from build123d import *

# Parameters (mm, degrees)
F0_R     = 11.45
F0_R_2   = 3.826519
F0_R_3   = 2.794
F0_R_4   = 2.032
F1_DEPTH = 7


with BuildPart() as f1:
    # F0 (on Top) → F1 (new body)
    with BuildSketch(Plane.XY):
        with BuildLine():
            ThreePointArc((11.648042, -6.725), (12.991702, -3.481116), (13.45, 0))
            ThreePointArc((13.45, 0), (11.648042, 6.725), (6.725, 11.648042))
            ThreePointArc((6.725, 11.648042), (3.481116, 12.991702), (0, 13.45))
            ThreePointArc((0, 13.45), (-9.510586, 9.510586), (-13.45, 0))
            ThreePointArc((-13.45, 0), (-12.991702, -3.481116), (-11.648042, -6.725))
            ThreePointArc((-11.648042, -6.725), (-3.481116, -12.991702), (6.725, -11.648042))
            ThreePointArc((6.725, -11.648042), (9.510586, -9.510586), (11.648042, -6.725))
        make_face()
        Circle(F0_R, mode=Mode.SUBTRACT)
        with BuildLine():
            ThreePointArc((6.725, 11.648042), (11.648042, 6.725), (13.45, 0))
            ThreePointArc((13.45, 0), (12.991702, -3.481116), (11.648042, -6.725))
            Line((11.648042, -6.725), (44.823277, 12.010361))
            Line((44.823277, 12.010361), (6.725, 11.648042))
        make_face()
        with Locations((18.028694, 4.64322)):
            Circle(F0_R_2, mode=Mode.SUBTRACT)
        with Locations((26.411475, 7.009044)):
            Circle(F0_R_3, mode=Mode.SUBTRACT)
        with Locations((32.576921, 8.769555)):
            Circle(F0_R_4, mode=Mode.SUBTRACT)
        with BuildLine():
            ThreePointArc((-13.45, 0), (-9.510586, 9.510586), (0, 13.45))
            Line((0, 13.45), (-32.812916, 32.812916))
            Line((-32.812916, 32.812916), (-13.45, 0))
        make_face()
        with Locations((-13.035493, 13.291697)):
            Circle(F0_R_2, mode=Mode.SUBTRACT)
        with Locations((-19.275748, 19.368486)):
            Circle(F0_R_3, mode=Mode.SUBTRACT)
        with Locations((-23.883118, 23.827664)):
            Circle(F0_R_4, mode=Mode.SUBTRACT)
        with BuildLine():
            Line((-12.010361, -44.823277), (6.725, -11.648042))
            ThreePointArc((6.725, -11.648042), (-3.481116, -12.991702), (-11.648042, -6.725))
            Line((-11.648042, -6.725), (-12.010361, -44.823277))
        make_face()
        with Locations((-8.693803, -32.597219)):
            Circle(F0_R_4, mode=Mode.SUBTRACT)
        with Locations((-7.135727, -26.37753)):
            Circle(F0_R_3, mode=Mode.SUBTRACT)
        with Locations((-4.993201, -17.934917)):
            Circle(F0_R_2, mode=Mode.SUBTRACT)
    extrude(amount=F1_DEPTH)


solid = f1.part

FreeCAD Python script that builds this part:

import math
import FreeCAD as App
import Part
import Sketcher
from FreeCAD import Vector
Q = App.Units.Quantity

doc = App.newDocument("Part")
body = doc.addObject("PartDesign::Body", "Body")

sketch1 = body.newObject("Sketcher::SketchObject", "Sketch")
sketch1.AttachmentSupport = (doc.getObject("XY_Plane"), [""])
sketch1.MapMode = "FlatFace"
sketch1.addGeometry([
    Part.ArcOfCircle(Part.Circle(Vector(-0.000012, 0.000012, 0), Vector(0, 0, 1), 13.450016), math.radians(-59.999982), math.radians(-30.000018)),
    Part.LineSegment(Vector(11.648042, -6.725, 0), Vector(44.823277, 12.010361, 0)),
    Part.LineSegment(Vector(44.823277, 12.010361, 0), Vector(6.725, 11.648042, 0)),
    Part.ArcOfCircle(Part.Circle(Vector(-0.000004, -0.000015, 0), Vector(0, 0, 1), 13.450015), math.radians(60.00002), math.radians(89.999985)),
    Part.LineSegment(Vector(0, 13.45, 0), Vector(-32.812916, 32.812916, 0)),
    Part.LineSegment(Vector(-32.812916, 32.812916, 0), Vector(-13.45, 0, 0)),
    Part.ArcOfCircle(Part.Circle(Vector(0.000015, 0.000004, 0), Vector(0, 0, 1), 13.450015), math.radians(-179.999985), math.radians(-150.00002)),
    Part.LineSegment(Vector(-11.648042, -6.725, 0), Vector(-12.010361, -44.823277, 0)),
    Part.LineSegment(Vector(-12.010361, -44.823277, 0), Vector(6.725, -11.648042, 0)),
    Part.Circle(Vector(-8.693803, -32.597219, 0), Vector(0, 0, 1), 2.032),
    Part.Circle(Vector(-7.135727, -26.37753, 0), Vector(0, 0, 1), 2.794),
    Part.Circle(Vector(-4.993201, -17.934917, 0), Vector(0, 0, 1), 3.826519),
    Part.Circle(Vector(0, 0, 0), Vector(0, 0, 1), 11.45),
    Part.Circle(Vector(-13.035493, 13.291697, 0), Vector(0, 0, 1), 3.826519),
    Part.Circle(Vector(-19.275748, 19.368486, 0), Vector(0, 0, 1), 2.794),
    Part.Circle(Vector(-23.883118, 23.827664, 0), Vector(0, 0, 1), 2.032),
    Part.Circle(Vector(18.028694, 4.64322, 0), Vector(0, 0, 1), 3.826519),
    Part.Circle(Vector(26.411475, 7.009044, 0), Vector(0, 0, 1), 2.794),
    Part.Circle(Vector(32.576921, 8.769555, 0), Vector(0, 0, 1), 2.032),
], False)
sketch1.addConstraint([
    Sketcher.Constraint("Coincident", 0, 2, 1, 1),
    Sketcher.Constraint("Coincident", 1, 2, 2, 1),
    Sketcher.Constraint("Coincident", 2, 2, 3, 1),
    Sketcher.Constraint("Coincident", 3, 2, 4, 1),
    Sketcher.Constraint("Coincident", 4, 2, 5, 1),
    Sketcher.Constraint("Coincident", 5, 2, 6, 1),
    Sketcher.Constraint("Coincident", 6, 2, 7, 1),
    Sketcher.Constraint("Coincident", 7, 2, 8, 1),
    Sketcher.Constraint("Coincident", 8, 2, 0, 1),
    Sketcher.Constraint("Coincident", 12, 3, -1, 1),
    Sketcher.Constraint("Equal", 0, 3),
    Sketcher.Constraint("Equal", 3, 6),
    Sketcher.Constraint("Equal", 11, 13),
    Sketcher.Constraint("Equal", 10, 14),
    Sketcher.Constraint("Equal", 9, 15),
    Sketcher.Constraint("Equal", 13, 16),
    Sketcher.Constraint("Equal", 14, 17),
    Sketcher.Constraint("Equal", 15, 18),
    Sketcher.Constraint("Symmetric", 0, 3, 6, 3, -2),
    Sketcher.Constraint("Symmetric", 0, 3, 3, 3, -1),
    Sketcher.Constraint("PointOnObject", 3, 2, -2),
    Sketcher.Constraint("PointOnObject", 5, 2, -1),
    Sketcher.Constraint("Horizontal", 0, 2, 6, 2),
    Sketcher.Constraint("Vertical", 2, 2, 8, 2),
    Sketcher.Constraint("Equal", 1, 2),
    Sketcher.Constraint("Equal", 2, 4),
    Sketcher.Constraint("Equal", 4, 5),
    Sketcher.Constraint("Equal", 5, 7),
    Sketcher.Constraint("Equal", 7, 8),
    Sketcher.Constraint("Diameter", 9, Q("0.16 in")),
    Sketcher.Constraint("Diameter", 10, Q("0.22 in")),
    Sketcher.Constraint("Distance", 1, Q("1.5 in")),
    Sketcher.Constraint("Diameter", 12, Q("22.9 mm")),
    Sketcher.Constraint("Diameter", 11, Q("7.653038 mm")),
    Sketcher.Constraint("Radius", 0, Q("13.450016 mm")),
    Sketcher.Constraint("DistanceX", 11, 3, -1, 1, Q("4.993201 mm")),
    Sketcher.Constraint("DistanceY", 0, 2, -1, 1, Q("6.725 mm")),
    Sketcher.Constraint("DistanceX", -1, 1, 2, 2, Q("6.725 mm")),
    Sketcher.Constraint("DistanceY", -1, 1, 3, 2, Q("13.45 mm")),
    Sketcher.Constraint("DistanceX", 5, 2, -1, 1, Q("13.45 mm")),
    Sketcher.Constraint("DistanceX", 9, 3, 3, 3, Q("8.693799 mm")),
    Sketcher.Constraint("DistanceY", 11, 3, 3, 3, Q("17.934902 mm")),
    Sketcher.Constraint("DistanceY", 3, 3, 14, 3, Q("19.368501 mm")),
    Sketcher.Constraint("DistanceX", 17, 3, 1, 2, Q("18.411802 mm")),
    Sketcher.Constraint("DistanceX", 4, 2, 15, 3, Q("8.929798 mm")),
    Sketcher.Constraint("DistanceY", 9, 3, -1, 1, Q("32.597219 mm")),
    Sketcher.Constraint("DistanceY", 10, 3, -1, 1, Q("26.37753 mm")),
    Sketcher.Constraint("DistanceX", 14, 3, -1, 1, Q("19.275748 mm")),
    Sketcher.Constraint("DistanceY", -1, 1, 16, 3, Q("4.64322 mm")),
    Sketcher.Constraint("DistanceX", -1, 1, 18, 3, Q("32.576921 mm")),
    Sketcher.Constraint("DistanceX", 13, 3, 0, 3, Q("13.035481 mm")),
    Sketcher.Constraint("DistanceY", 13, 3, 14, 3, Q("6.076789 mm")),
    Sketcher.Constraint("DistanceY", 3, 3, 15, 3, Q("23.827679 mm")),
    Sketcher.Constraint("DistanceX", 6, 3, 16, 3, Q("18.028679 mm")),
    Sketcher.Constraint("DistanceY", 6, 3, 17, 3, Q("7.00904 mm")),
    Sketcher.Constraint("DistanceY", 17, 3, 18, 3, Q("1.760511 mm")),
    Sketcher.Constraint("DistanceX", 10, 3, -1, 1, Q("7.135727 mm")),
])
pad1 = body.newObject("PartDesign::Pad", "Pad")
pad1.Profile = sketch1
pad1.Length = 7

doc.recompute()
